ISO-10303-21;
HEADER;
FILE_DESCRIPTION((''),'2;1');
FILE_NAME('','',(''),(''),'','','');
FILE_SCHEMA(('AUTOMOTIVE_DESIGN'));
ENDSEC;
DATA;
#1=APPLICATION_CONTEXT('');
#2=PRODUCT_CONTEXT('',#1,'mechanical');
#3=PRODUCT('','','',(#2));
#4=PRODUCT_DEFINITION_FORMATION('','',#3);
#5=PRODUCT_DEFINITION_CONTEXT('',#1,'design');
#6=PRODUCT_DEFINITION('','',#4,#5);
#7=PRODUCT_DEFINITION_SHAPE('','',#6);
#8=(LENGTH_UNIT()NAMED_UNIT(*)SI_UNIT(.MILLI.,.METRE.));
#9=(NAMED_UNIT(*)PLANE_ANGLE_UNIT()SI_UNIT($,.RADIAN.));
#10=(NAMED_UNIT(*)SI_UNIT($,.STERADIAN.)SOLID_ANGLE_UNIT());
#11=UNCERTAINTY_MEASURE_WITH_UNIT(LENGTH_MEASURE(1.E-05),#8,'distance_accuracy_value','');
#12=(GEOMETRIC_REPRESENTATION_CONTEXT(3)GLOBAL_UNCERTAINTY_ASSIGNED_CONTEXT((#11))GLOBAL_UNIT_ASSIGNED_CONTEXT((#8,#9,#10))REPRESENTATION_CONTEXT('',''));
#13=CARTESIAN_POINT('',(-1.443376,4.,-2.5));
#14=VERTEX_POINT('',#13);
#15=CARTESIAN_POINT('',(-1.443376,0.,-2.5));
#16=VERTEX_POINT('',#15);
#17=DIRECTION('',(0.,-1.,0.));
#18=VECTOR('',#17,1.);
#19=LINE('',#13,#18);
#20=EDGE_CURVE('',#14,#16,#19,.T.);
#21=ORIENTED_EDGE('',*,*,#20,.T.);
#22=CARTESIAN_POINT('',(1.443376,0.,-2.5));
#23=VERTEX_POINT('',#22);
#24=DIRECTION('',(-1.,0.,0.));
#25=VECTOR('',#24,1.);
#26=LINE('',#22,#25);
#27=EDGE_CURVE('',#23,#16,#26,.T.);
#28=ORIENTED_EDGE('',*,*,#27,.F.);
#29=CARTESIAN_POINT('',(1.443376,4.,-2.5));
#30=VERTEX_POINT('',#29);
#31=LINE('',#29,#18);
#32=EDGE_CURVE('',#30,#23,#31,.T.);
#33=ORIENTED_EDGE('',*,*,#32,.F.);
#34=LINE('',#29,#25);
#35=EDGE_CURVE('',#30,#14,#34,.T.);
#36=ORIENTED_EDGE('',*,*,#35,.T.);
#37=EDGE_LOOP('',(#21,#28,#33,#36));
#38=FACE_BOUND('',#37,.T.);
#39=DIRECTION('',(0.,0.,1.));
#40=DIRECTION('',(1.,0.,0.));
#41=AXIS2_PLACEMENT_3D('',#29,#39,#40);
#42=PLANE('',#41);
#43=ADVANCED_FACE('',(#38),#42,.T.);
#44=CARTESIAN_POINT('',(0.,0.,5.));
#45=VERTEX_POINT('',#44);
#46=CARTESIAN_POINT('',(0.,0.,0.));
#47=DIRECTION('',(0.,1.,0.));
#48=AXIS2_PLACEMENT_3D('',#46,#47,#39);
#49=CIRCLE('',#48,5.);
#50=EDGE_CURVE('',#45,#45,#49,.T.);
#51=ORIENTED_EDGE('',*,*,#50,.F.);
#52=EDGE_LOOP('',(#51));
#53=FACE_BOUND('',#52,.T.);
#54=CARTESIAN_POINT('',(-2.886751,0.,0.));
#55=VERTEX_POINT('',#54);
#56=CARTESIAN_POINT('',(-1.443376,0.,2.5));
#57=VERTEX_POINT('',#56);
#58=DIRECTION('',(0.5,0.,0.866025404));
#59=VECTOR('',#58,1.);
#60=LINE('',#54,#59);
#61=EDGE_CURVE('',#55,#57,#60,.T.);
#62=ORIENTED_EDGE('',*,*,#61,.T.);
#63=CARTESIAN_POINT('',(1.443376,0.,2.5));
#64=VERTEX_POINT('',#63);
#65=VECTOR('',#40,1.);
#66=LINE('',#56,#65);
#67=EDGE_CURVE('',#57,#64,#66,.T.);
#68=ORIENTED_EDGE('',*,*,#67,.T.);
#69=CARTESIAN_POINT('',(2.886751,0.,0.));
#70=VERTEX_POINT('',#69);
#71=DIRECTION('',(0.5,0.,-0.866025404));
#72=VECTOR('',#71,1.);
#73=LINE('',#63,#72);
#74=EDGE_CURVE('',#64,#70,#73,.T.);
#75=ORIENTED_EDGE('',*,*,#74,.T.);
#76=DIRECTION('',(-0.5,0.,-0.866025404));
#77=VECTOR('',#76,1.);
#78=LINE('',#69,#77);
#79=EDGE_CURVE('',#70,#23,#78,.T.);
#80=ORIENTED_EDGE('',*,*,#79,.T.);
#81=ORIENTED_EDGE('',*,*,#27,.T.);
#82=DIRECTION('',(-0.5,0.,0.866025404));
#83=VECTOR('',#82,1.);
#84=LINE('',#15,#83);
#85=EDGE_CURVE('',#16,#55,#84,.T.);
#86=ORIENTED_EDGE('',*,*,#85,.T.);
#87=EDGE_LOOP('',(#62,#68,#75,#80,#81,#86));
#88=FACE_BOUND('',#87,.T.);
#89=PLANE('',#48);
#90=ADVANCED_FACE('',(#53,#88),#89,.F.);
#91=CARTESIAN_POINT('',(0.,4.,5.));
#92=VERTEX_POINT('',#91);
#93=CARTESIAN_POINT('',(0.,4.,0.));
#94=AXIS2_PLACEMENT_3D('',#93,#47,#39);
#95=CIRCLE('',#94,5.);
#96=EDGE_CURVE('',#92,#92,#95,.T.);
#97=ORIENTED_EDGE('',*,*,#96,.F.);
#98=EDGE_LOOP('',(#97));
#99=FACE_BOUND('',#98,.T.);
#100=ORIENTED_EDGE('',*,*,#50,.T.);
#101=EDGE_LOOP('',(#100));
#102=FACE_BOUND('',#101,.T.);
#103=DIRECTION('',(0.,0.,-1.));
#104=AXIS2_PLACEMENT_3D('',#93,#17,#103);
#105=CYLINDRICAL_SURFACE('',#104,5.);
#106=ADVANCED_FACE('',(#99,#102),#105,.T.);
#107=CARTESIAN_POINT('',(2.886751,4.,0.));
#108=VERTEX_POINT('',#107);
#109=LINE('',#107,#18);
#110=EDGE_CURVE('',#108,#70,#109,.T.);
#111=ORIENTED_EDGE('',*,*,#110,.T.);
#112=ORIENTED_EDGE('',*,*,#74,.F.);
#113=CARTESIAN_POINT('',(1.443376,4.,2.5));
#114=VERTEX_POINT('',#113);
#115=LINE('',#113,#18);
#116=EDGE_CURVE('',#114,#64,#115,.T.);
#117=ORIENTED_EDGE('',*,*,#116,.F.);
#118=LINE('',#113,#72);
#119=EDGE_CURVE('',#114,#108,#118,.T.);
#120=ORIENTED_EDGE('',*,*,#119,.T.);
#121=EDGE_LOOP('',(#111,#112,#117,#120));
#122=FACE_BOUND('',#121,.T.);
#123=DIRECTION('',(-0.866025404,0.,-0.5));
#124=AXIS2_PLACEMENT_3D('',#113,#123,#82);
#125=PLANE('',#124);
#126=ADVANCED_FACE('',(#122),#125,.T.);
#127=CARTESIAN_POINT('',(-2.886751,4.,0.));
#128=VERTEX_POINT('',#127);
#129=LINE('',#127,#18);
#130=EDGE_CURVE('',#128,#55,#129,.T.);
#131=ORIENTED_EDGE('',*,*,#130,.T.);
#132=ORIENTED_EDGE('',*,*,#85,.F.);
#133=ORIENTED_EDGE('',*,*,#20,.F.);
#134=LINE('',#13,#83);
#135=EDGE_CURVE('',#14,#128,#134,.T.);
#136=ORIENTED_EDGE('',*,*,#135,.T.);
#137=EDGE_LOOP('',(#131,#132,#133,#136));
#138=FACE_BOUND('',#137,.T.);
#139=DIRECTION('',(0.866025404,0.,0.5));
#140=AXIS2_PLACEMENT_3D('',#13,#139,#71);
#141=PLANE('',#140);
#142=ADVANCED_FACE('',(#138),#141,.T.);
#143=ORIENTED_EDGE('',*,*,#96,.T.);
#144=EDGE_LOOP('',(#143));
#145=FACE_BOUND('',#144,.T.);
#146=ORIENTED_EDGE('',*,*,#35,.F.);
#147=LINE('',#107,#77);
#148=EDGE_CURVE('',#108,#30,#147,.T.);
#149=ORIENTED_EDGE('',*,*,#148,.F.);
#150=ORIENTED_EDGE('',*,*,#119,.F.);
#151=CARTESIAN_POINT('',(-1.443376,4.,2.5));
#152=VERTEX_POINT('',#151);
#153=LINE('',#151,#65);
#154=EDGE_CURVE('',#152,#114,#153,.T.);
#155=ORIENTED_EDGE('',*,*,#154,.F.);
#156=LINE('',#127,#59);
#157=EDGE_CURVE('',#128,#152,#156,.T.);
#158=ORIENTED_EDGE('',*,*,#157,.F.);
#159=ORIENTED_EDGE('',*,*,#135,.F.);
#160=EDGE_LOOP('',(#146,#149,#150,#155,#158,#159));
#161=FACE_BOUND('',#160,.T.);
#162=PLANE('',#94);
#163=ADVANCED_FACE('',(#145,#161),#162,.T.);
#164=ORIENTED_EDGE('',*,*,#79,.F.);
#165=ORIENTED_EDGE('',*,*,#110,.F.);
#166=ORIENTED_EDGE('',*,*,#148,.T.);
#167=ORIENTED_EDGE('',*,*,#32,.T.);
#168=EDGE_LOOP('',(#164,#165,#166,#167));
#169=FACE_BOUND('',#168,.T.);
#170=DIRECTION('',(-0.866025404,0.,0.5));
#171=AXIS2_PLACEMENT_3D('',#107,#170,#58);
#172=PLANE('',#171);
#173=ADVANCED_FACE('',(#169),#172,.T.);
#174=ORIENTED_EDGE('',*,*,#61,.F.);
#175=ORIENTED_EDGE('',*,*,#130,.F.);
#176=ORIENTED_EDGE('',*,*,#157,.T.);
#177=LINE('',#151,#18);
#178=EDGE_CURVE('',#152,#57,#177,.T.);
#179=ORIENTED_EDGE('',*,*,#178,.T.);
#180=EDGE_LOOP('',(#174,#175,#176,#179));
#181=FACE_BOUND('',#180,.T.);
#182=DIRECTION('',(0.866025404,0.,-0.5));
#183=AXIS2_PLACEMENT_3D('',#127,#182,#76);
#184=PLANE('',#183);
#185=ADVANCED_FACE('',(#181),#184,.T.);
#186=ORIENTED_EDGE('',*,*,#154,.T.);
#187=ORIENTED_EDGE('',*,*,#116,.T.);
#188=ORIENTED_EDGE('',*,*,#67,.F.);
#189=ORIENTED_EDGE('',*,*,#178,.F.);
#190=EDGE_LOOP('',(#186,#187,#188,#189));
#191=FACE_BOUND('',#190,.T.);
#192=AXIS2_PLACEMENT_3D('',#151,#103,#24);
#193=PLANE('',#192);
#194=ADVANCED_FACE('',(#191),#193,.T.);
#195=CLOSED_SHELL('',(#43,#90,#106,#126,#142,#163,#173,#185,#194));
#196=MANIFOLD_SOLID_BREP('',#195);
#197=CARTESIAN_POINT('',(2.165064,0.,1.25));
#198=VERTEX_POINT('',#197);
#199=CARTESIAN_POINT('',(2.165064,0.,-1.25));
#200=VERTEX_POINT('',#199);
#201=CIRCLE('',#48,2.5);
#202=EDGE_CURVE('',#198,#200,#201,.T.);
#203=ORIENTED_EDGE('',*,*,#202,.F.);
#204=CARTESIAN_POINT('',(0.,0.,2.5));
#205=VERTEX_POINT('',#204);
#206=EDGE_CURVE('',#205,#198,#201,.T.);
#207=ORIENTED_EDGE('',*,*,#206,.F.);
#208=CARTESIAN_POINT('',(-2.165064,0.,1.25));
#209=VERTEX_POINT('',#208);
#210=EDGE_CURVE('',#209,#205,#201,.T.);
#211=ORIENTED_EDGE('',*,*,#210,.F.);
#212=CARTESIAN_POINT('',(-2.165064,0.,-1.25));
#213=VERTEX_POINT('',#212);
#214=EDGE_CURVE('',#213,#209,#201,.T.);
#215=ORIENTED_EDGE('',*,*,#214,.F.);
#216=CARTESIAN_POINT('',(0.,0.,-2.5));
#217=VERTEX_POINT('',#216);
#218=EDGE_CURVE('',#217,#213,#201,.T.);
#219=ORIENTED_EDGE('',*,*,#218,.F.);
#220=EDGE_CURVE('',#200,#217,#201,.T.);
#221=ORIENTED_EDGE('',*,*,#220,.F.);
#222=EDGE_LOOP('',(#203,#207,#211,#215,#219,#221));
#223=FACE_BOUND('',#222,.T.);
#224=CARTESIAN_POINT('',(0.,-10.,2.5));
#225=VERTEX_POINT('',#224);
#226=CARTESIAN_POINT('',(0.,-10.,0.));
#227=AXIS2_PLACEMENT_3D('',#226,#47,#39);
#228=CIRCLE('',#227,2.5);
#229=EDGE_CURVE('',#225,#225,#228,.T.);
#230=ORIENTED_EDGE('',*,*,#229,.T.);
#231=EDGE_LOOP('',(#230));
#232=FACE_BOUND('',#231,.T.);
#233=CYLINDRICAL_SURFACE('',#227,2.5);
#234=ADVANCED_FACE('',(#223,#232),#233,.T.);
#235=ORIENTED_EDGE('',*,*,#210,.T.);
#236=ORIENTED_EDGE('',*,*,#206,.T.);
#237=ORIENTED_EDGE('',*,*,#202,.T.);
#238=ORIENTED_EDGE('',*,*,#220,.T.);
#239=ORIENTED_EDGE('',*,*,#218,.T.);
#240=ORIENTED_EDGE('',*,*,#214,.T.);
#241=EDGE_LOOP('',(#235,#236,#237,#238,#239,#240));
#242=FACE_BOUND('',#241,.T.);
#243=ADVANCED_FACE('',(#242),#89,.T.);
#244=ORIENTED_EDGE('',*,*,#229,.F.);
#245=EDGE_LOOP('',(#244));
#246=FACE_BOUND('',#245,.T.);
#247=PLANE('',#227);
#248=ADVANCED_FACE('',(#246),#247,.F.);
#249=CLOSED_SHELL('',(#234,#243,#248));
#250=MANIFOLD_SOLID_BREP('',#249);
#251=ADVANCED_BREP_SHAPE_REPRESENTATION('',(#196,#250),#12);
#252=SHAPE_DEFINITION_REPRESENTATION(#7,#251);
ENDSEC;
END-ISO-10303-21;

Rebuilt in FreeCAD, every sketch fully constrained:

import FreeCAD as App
import Part
import Sketcher

V = App.Vector
Q = App.Units.Quantity


def add_polygon(sketch, points):
    """Adds a closed chain of lines whose ends are joined by coincident constraints."""
    first, n = sketch.GeometryCount, len(points)
    for a, b in zip(points, points[1:] + points[:1]):
        sketch.addGeometry(Part.LineSegment(App.Vector(*a, 0), App.Vector(*b, 0)), False)
    for i in range(n):
        sketch.addConstraint(Sketcher.Constraint("Coincident", first + i, 2, first + (i + 1) % n, 1))

doc = App.newDocument("Part")
body = doc.addObject("PartDesign::Body", "Body")

sketch1 = body.newObject("Sketcher::SketchObject", "Sketch")
sketch1.AttachmentSupport = (doc.getObject("XZ_Plane"), [""])
sketch1.MapMode = "FlatFace"
sketch1.addGeometry(Part.Circle(V(0, 0, 0), V(0, 0, 1), 2.5), False)
sketch1.addConstraint(Sketcher.Constraint("Coincident", 0, 3, -1, 1))
sketch1.addConstraint(Sketcher.Constraint("Diameter", 0, Q("5 mm")))
pad1 = body.newObject("PartDesign::Pad", "Pad")
pad1.Profile = sketch1
pad1.Length = 10
body2 = doc.addObject("PartDesign::Body", "Body001")

sketch2 = body2.newObject("Sketcher::SketchObject", "Sketch001")
sketch2.AttachmentSupport = (doc.getObject("XZ_Plane001"), [""])
sketch2.MapMode = "FlatFace"
sketch2.addGeometry(Part.Circle(V(0, 0, 0), V(0, 0, 1), 5), False)
add_polygon(sketch2, [(1.443376, -2.5), (2.886751, 0), (1.443376, 2.5), (-1.443376, 2.5), (-2.886751, 0), (-1.443376, -2.5)])
sketch2.addConstraint(Sketcher.Constraint("Horizontal", 3))
sketch2.addConstraint(Sketcher.Constraint("Horizontal", 6))
sketch2.addConstraint(Sketcher.Constraint("Coincident", 0, 3, -1, 1))
sketch2.addConstraint(Sketcher.Constraint("Symmetric", 1, 2, 4, 2, -1, 1))
sketch2.addConstraint(Sketcher.Constraint("Symmetric", 2, 2, 5, 2, -1, 1))
sketch2.addConstraint(Sketcher.Constraint("PointOnObject", 1, 2, -1))
sketch2.addConstraint(Sketcher.Constraint("Parallel", 1, 4))
sketch2.addConstraint(Sketcher.Constraint("Vertical", 3, 2, 5, 2))
sketch2.addConstraint(Sketcher.Constraint("Diameter", 0, Q("10 mm")))
sketch2.addConstraint(Sketcher.Constraint("Angle", 1, Q("60 deg")))
sketch2.addConstraint(Sketcher.Constraint("DistanceY", 5, 2, 3, 2, Q("5 mm")))
sketch2.addConstraint(Sketcher.Constraint("DistanceX", 3, 2, 3, 1, Q("2.886751 mm")))
pad2 = body2.newObject("PartDesign::Pad", "Pad001")
pad2.Profile = sketch2
pad2.Length = 4
pad2.Reversed = True

doc.recompute()
